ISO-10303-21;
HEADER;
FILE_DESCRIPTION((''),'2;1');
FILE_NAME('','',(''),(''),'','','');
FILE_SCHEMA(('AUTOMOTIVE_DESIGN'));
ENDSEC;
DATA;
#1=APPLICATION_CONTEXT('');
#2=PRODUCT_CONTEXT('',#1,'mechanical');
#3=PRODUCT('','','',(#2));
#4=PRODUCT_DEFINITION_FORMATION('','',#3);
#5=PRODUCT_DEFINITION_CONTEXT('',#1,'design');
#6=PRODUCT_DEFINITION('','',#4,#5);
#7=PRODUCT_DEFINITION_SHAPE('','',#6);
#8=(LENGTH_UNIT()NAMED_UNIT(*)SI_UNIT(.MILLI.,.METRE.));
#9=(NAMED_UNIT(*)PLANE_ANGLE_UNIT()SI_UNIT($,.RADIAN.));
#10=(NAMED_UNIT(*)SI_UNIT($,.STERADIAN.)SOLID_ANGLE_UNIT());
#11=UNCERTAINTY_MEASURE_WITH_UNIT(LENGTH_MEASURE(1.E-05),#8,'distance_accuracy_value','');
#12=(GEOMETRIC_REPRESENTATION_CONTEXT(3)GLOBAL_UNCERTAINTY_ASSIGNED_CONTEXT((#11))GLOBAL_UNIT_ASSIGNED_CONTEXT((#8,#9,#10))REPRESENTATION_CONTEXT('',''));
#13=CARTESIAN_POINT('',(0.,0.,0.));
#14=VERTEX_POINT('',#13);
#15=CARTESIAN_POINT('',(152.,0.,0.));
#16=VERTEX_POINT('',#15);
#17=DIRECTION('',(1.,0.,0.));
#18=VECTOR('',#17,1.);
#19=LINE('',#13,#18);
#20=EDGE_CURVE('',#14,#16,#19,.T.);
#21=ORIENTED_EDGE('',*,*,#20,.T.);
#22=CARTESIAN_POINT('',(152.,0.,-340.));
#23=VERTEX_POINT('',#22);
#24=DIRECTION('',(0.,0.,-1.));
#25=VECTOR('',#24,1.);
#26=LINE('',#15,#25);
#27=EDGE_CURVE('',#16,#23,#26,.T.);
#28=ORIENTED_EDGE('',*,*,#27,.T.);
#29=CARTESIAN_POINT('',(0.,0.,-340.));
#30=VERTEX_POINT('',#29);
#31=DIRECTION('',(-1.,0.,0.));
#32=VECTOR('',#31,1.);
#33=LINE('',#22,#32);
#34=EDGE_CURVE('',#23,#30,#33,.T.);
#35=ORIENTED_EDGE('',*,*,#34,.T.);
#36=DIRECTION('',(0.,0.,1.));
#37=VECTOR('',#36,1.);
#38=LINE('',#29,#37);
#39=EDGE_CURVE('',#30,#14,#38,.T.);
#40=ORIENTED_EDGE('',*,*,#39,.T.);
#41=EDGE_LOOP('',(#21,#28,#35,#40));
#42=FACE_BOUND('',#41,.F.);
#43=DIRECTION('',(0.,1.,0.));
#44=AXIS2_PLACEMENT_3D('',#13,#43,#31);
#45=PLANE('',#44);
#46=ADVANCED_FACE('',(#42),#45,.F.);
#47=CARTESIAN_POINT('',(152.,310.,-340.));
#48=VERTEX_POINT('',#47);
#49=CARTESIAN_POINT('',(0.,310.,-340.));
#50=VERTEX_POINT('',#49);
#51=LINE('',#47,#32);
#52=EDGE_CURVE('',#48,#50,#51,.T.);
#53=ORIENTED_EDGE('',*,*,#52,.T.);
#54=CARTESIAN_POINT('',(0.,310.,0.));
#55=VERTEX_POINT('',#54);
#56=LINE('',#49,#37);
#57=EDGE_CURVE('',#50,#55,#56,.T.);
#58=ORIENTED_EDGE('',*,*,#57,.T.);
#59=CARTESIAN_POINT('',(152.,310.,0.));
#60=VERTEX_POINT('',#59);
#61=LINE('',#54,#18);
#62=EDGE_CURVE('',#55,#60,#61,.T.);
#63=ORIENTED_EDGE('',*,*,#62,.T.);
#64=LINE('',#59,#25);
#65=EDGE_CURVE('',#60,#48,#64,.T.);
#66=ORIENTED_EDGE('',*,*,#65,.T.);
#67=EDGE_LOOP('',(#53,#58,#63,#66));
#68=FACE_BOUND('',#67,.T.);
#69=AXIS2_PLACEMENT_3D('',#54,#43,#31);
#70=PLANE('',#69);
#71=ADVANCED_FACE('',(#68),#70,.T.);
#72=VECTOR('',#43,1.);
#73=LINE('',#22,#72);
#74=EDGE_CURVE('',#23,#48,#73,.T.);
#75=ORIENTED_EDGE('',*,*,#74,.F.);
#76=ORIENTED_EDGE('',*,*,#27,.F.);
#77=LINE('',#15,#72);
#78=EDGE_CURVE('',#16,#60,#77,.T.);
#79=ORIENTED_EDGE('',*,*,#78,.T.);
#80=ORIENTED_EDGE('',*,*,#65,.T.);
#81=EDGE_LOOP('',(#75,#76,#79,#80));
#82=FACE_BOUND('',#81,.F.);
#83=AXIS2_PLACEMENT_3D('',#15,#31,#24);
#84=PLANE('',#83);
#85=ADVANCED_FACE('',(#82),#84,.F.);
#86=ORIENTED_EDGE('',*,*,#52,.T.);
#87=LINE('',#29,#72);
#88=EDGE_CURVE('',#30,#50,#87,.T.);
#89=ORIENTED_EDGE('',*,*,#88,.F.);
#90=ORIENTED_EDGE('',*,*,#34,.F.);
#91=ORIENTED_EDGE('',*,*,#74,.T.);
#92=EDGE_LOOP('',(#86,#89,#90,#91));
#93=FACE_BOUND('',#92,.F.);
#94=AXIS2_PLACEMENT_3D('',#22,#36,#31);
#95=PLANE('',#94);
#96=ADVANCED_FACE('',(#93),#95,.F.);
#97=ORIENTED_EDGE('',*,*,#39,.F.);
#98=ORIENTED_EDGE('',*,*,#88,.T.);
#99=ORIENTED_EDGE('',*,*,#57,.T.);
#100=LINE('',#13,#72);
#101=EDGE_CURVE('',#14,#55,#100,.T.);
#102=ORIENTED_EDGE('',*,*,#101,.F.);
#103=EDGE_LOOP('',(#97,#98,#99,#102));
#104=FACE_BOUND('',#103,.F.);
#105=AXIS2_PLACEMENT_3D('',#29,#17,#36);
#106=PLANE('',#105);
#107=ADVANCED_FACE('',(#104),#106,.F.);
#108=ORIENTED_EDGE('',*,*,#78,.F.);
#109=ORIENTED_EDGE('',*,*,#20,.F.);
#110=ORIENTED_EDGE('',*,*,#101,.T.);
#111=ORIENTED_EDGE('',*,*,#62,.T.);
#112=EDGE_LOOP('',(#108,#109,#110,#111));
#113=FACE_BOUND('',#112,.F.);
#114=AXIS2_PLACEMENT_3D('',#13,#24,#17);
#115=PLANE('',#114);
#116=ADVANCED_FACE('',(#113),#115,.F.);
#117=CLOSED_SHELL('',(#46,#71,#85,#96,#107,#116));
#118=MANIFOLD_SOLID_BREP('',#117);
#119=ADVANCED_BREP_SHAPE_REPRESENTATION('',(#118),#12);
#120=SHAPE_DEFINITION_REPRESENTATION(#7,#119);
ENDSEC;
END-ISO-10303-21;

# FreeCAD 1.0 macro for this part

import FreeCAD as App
import Part
import Sketcher


def add_polygon(sketch, points):
    """Adds a closed chain of lines whose ends are joined by coincident constraints."""
    first, n = sketch.GeometryCount, len(points)
    for a, b in zip(points, points[1:] + points[:1]):
        sketch.addGeometry(Part.LineSegment(App.Vector(*a, 0), App.Vector(*b, 0)), False)
    for i in range(n):
        sketch.addConstraint(Sketcher.Constraint("Coincident", first + i, 2, first + (i + 1) % n, 1))

doc = App.newDocument("Part")
body = doc.addObject("PartDesign::Body", "Body")

# Sketch on XZ plane
sketch1 = body.newObject("Sketcher::SketchObject", "Sketch")
sketch1.AttachmentSupport = (doc.getObject("XZ_Plane"), [""])
sketch1.MapMode = "FlatFace"
add_polygon(sketch1, [(0, -340), (0, 0), (152, 0), (152, -340)])  # lines 0-3
sketch1.addConstraint([
    Sketcher.Constraint("Vertical", 0),
    Sketcher.Constraint("Horizontal", 1),
    Sketcher.Constraint("Vertical", 2),
    Sketcher.Constraint("Horizontal", 3),
    Sketcher.Constraint("Coincident", 0, 2, -1, 1),
    Sketcher.Constraint("DistanceX", 1, 1, 1, 2, 152.0),
    Sketcher.Constraint("DistanceY", 0, 1, 0, 2, 340.0),
])
pad1 = body.newObject("PartDesign::Pad", "Pad")
pad1.Profile = sketch1
pad1.Length = 310
pad1.Reversed = True

doc.recompute()
